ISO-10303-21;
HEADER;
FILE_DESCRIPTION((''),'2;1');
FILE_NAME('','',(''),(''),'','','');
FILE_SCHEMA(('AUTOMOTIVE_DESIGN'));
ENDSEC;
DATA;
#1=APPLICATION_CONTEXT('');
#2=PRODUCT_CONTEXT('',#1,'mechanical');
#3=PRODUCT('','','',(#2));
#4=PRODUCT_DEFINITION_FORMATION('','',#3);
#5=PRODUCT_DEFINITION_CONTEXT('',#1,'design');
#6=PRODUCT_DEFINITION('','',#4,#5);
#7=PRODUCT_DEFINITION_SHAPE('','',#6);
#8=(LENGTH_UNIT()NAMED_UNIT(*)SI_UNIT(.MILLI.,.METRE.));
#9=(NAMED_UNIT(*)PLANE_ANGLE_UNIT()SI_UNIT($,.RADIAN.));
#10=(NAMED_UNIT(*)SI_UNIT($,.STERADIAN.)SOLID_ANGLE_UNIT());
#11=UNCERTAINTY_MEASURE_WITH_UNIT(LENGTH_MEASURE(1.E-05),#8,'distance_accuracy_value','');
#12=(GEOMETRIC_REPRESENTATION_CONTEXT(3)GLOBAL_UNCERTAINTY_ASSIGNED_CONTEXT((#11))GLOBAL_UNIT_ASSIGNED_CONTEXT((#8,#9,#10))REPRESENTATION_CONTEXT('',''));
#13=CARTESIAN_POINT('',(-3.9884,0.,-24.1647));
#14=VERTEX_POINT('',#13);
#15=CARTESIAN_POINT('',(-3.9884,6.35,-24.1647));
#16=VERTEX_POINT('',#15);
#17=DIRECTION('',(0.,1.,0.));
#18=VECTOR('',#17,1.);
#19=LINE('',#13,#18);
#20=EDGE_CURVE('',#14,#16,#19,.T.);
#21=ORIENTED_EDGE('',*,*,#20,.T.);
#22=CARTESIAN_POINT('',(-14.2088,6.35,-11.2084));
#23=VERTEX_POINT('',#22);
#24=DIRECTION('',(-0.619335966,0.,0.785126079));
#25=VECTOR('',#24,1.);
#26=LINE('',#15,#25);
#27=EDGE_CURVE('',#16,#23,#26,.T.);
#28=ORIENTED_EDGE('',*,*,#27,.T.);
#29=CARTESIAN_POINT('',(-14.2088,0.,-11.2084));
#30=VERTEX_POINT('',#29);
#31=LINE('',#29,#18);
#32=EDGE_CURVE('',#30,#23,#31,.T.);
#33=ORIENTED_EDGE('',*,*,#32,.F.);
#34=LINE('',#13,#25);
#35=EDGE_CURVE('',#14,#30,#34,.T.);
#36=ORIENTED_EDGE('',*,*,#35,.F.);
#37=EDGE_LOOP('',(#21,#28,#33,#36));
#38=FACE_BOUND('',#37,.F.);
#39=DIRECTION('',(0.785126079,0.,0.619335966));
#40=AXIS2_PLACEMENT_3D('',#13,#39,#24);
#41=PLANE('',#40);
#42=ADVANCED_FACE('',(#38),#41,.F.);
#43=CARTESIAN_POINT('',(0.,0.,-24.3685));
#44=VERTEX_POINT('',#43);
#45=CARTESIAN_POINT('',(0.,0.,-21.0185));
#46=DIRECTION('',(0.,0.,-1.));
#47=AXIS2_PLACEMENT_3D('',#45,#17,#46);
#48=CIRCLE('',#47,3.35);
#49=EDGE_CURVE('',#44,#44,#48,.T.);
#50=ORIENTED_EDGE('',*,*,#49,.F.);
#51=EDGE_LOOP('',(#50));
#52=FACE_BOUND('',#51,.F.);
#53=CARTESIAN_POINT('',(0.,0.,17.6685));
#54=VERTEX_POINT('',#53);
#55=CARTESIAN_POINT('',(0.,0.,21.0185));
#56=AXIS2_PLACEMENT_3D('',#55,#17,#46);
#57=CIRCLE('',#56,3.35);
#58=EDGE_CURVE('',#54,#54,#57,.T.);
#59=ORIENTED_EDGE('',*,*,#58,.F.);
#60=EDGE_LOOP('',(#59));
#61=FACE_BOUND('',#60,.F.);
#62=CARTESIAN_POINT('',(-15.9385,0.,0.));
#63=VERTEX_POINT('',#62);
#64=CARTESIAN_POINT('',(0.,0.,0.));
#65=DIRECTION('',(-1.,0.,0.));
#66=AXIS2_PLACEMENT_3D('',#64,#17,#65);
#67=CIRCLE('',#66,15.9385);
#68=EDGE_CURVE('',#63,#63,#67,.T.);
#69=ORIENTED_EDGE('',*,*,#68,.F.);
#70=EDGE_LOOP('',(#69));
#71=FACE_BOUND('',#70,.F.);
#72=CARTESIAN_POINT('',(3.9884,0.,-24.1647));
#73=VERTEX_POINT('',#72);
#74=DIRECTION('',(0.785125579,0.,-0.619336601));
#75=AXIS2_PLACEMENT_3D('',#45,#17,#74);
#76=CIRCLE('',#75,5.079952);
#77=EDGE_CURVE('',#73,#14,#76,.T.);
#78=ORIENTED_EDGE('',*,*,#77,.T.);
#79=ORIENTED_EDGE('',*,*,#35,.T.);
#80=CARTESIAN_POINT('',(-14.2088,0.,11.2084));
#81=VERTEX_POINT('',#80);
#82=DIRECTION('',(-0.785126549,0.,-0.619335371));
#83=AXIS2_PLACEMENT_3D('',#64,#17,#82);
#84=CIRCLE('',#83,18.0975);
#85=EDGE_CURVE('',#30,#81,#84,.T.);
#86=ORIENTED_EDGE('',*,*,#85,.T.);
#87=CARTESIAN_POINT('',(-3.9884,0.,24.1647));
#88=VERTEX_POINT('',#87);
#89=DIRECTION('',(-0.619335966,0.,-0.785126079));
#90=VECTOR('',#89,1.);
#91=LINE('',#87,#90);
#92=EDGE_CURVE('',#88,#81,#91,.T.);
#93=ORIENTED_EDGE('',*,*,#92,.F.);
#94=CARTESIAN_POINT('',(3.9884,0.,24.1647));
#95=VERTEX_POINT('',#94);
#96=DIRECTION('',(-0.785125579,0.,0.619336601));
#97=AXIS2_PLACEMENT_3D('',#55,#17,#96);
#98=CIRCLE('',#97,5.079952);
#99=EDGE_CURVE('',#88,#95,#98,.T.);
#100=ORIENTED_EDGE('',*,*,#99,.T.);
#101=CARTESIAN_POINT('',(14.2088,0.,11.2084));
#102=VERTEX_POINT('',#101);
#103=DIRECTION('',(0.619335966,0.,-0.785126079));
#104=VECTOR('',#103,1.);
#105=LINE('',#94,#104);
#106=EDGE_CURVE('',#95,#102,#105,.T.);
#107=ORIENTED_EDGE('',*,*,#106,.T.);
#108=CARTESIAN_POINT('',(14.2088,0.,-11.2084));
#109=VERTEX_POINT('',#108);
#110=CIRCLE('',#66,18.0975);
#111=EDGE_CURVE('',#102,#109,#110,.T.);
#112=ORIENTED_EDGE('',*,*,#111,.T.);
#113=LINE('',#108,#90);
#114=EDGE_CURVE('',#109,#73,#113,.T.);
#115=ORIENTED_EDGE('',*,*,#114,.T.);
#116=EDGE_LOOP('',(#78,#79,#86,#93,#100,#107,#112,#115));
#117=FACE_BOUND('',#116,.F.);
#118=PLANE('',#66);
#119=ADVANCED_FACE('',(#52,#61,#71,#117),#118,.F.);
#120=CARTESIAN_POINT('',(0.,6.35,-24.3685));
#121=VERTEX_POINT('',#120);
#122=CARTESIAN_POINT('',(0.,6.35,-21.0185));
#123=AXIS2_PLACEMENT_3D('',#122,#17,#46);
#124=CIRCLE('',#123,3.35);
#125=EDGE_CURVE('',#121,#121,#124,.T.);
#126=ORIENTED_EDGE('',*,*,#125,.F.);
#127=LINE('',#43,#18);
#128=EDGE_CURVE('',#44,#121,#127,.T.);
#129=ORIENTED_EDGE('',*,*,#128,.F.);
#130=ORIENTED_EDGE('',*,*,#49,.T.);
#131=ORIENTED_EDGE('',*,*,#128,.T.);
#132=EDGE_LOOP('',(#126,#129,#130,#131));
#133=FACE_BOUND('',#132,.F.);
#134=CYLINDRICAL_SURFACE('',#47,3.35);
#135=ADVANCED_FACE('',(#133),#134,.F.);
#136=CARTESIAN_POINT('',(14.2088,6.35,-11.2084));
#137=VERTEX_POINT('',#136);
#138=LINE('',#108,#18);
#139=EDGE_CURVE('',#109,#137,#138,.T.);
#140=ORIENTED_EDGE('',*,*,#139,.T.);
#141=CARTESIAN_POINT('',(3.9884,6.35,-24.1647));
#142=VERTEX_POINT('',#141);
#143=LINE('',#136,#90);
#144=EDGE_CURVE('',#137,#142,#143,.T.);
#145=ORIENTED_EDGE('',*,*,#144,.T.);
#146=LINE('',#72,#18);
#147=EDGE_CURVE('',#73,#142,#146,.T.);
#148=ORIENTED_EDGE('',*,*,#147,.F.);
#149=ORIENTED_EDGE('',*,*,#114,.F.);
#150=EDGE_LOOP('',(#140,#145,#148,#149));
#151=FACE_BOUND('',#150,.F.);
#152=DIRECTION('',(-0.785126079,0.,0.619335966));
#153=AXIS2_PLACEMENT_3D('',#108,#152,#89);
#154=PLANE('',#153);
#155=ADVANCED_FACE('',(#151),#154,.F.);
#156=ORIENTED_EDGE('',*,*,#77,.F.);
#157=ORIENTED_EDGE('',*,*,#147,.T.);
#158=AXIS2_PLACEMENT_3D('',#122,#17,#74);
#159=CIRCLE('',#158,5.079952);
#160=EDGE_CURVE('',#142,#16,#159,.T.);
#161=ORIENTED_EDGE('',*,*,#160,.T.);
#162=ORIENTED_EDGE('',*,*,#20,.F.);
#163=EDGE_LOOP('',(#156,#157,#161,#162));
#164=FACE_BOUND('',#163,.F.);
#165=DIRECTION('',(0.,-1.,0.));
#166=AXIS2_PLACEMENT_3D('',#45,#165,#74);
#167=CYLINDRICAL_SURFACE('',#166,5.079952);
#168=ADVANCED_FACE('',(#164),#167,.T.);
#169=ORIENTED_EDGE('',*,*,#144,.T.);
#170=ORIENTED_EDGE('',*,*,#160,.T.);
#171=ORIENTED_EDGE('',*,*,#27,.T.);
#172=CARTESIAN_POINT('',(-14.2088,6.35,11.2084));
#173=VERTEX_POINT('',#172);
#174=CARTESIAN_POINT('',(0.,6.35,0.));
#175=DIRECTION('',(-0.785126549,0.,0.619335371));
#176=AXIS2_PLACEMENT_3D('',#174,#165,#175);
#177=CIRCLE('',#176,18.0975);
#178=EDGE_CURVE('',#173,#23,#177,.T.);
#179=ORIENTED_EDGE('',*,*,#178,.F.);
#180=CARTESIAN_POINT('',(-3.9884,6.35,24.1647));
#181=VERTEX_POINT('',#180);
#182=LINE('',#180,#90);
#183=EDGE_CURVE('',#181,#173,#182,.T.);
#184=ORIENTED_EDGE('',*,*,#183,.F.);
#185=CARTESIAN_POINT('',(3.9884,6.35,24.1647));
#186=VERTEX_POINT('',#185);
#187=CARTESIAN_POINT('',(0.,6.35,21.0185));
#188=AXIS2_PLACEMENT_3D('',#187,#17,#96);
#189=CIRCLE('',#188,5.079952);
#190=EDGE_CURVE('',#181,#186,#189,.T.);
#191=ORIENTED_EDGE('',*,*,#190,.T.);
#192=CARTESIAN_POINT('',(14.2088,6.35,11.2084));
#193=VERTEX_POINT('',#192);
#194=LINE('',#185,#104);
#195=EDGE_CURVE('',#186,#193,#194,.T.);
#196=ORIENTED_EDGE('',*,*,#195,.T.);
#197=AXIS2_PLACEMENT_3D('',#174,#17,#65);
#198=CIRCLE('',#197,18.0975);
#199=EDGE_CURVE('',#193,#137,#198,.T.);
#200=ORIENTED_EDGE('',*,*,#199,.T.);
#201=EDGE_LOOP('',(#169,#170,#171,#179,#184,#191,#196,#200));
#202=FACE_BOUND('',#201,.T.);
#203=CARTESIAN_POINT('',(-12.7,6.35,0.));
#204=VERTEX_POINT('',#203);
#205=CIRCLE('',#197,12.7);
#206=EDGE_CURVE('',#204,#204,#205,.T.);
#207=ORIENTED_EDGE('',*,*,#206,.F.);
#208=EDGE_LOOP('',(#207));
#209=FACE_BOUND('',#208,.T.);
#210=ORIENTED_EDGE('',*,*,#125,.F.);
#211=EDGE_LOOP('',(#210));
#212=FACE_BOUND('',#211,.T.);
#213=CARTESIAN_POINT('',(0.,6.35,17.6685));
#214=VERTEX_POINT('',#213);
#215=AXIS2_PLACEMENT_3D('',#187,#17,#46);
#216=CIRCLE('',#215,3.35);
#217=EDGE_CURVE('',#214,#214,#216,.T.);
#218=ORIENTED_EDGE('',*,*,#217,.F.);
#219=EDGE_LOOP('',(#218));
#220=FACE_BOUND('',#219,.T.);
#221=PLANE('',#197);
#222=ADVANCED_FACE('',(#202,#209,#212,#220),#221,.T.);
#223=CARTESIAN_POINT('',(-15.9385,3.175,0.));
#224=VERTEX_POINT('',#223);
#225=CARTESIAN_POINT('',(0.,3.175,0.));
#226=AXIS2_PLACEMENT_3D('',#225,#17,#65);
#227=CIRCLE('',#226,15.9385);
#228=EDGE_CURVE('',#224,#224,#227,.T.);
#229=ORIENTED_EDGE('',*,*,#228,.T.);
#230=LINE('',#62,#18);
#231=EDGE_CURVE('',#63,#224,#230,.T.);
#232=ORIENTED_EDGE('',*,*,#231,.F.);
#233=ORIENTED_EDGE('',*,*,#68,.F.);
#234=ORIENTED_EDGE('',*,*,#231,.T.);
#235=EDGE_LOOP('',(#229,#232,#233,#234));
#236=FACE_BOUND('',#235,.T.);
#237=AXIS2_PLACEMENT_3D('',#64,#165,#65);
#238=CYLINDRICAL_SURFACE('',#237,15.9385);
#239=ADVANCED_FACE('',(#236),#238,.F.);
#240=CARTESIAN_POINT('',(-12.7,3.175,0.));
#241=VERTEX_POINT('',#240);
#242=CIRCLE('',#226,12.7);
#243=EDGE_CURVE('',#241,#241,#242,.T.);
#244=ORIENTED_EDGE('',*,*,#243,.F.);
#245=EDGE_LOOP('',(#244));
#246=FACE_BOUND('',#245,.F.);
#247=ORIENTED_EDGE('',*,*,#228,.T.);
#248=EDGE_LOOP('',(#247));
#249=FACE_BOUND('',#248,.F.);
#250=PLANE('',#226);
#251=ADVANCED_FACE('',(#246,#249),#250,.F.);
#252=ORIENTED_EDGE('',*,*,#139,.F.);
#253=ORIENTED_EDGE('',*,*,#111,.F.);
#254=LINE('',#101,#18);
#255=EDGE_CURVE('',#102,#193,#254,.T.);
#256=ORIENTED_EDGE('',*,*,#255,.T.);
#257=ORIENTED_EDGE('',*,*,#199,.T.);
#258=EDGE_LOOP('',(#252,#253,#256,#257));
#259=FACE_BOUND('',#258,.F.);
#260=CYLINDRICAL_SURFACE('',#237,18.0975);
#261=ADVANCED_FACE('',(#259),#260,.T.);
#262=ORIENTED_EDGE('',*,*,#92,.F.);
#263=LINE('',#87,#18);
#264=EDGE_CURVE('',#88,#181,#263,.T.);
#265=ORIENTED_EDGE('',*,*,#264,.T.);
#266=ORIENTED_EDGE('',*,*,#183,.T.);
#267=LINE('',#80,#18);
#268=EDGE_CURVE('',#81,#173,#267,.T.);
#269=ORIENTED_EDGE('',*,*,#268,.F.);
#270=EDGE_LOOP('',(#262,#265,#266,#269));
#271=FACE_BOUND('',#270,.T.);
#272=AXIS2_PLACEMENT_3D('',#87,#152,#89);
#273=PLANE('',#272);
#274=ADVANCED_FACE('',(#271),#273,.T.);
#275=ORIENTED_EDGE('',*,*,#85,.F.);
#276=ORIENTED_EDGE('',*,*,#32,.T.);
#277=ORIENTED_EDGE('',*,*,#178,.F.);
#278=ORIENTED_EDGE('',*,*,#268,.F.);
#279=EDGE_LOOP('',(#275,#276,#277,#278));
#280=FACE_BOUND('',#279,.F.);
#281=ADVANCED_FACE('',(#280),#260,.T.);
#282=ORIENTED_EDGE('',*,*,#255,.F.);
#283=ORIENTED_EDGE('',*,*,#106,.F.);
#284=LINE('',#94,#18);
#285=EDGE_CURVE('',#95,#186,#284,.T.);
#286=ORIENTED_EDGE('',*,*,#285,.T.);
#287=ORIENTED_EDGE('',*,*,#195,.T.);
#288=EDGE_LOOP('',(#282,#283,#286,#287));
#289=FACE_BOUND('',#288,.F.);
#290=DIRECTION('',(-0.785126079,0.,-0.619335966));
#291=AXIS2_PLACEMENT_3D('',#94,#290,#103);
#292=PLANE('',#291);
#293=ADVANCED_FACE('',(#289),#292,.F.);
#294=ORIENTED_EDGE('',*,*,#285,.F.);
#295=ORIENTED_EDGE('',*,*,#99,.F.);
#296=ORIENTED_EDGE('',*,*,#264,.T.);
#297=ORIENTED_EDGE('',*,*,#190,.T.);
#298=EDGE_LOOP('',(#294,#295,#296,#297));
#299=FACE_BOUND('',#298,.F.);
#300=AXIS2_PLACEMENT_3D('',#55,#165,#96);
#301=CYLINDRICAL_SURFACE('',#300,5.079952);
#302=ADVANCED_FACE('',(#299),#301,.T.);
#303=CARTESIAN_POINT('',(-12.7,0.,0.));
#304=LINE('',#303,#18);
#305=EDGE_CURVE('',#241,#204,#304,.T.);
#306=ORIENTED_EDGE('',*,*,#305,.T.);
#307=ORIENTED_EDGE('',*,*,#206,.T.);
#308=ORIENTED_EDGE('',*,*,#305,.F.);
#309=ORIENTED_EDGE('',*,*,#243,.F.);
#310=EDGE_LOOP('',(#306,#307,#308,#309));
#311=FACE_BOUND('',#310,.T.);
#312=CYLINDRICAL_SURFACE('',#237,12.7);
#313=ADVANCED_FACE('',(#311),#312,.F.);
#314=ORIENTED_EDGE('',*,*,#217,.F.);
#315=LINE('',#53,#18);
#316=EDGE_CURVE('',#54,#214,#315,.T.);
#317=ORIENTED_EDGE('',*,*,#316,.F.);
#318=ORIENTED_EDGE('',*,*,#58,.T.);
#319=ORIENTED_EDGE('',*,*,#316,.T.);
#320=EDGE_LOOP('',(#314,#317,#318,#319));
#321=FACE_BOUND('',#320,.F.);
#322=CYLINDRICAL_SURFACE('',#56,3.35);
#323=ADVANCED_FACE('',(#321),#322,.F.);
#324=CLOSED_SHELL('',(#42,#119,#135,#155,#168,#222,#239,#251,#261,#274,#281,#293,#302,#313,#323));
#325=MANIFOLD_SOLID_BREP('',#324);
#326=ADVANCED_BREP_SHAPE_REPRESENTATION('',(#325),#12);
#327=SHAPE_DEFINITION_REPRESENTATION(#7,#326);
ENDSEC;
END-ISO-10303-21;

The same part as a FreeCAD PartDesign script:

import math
import FreeCAD as App
import Part
import Sketcher
from FreeCAD import Vector
Q = App.Units.Quantity

doc = App.newDocument("Part")
params = doc.addObject("Spreadsheet::Sheet", "Params")
for row, (alias, value) in enumerate([
    ("sketch1_diameter", "1 in"),
    ("sketch1_radius", "0.2 in"),
    ("pad1_length", "0.25 in"),
    ("sketch2_diameter", "1 in"),
    ("sketch2_diameter2", "1.255 in"),
    ("pocket1_length", "0.125 in"),
    ("hole_diameter", "6.7 mm"),
], start=1):
    params.set(f"A{row}", alias)
    params.set(f"B{row}", "=" + value)
    params.setAlias(f"B{row}", alias)

body = doc.addObject("PartDesign::Body", "Body")

# Sketch on XZ plane
sketch1 = body.newObject("Sketcher::SketchObject", "Sketch")
sketch1.AttachmentSupport = (doc.getObject("XZ_Plane"), [""])
sketch1.MapMode = "FlatFace"
sketch1.addGeometry([
    Part.ArcOfCircle(Part.Circle(Vector(0, 0, 0), Vector(0, 0, 1), 18), math.radians(142), math.radians(218)),  # 0
    Part.LineSegment(Vector(-14, 11, 0), Vector(-4, 24, 0)),  # 1
    Part.ArcOfCircle(Part.Circle(Vector(0, 21, 0), Vector(0, 0, 1), 5), math.radians(38), math.radians(142)),  # 2
    Part.LineSegment(Vector(4, 24, 0), Vector(14, 11, 0)),  # 3
    Part.ArcOfCircle(Part.Circle(Vector(0, 0, 0), Vector(0, 0, 1), 18), math.radians(-38), math.radians(38)),  # 4
    Part.LineSegment(Vector(14, -11, 0), Vector(4, -24, 0)),  # 5
    Part.ArcOfCircle(Part.Circle(Vector(0, -21, 0), Vector(0, 0, 1), 5), math.radians(-142), math.radians(-38)),  # 6
    Part.LineSegment(Vector(-4, -24, 0), Vector(-14, -11, 0)),  # 7
    Part.Circle(Vector(0, 0, 0), Vector(0, 0, 1), 13),  # 8
], False)
sketch1.addConstraint([
    Sketcher.Constraint("Tangent", 0, 1, 1, 1),
    Sketcher.Constraint("Tangent", 1, 2, 2, 2),
    Sketcher.Constraint("Tangent", 2, 1, 3, 1),
    Sketcher.Constraint("Tangent", 3, 2, 4, 2),
    Sketcher.Constraint("Tangent", 4, 1, 5, 1),
    Sketcher.Constraint("Tangent", 5, 2, 6, 2),
    Sketcher.Constraint("Tangent", 6, 1, 7, 1),
    Sketcher.Constraint("Tangent", 7, 2, 0, 2),
    Sketcher.Constraint("Coincident", 0, 3, -1, 1),
    Sketcher.Constraint("Coincident", 4, 3, -1, 1),
    Sketcher.Constraint("Coincident", 8, 3, -1, 1),
    Sketcher.Constraint("Equal", 0, 4),
    Sketcher.Constraint("Equal", 2, 6),
    Sketcher.Constraint("Symmetric", 2, 3, 6, 3, -1, 1),
    Sketcher.Constraint("PointOnObject", 2, 3, -2),
    Sketcher.Constraint("Diameter", 8, Q("1 in")),
    Sketcher.Constraint("Radius", 2, Q("0.2 in")),
    Sketcher.Constraint("Radius", 0, Q("0.7125 in")),
    Sketcher.Constraint("DistanceY", 6, 3, 2, 3, Q("1.655 in")),
])
sketch1.setExpression("Constraints[15]", "Params.sketch1_diameter")
sketch1.setExpression("Constraints[16]", "Params.sketch1_radius")
pad1 = body.newObject("PartDesign::Pad", "Pad")
pad1.Profile = sketch1
pad1.setExpression("Length", "Params.pad1_length")
pad1.Reversed = True

# Sketch on XZ plane
sketch2 = body.newObject("Sketcher::SketchObject", "Sketch001")
sketch2.AttachmentSupport = (doc.getObject("XZ_Plane"), [""])
sketch2.MapMode = "FlatFace"
sketch2.addGeometry([
    Part.Circle(Vector(0, 0, 0), Vector(0, 0, 1), 16),
    Part.Circle(Vector(0, 0, 0), Vector(0, 0, 1), 13),
], False)
sketch2.addConstraint([
    Sketcher.Constraint("Coincident", 0, 3, -1, 1),
    Sketcher.Constraint("Coincident", 1, 3, -1, 1),
    Sketcher.Constraint("Diameter", 1, Q("1 in")),
    Sketcher.Constraint("Diameter", 0, Q("1.255 in")),
])
sketch2.setExpression("Constraints[2]", "Params.sketch2_diameter")
sketch2.setExpression("Constraints[3]", "Params.sketch2_diameter2")
pocket1 = body.newObject("PartDesign::Pocket", "Pocket")
pocket1.Profile = sketch2
pocket1.setExpression("Length", "Params.pocket1_length")

# Sketch on XZ plane
sketch3 = body.newObject("Sketcher::SketchObject", "Sketch002")
sketch3.AttachmentSupport = (doc.getObject("XZ_Plane"), [""])
sketch3.MapMode = "FlatFace"
sketch3.addGeometry([
    Part.Circle(Vector(0, 21, 0), Vector(0, 0, 1), 3.4),
    Part.Circle(Vector(0, -21, 0), Vector(0, 0, 1), 3.4),
], False)
sketch3.addConstraint([
    Sketcher.Constraint("Equal", 0, 1),
    Sketcher.Constraint("Symmetric", 0, 3, 1, 3, -1, 1),
    Sketcher.Constraint("PointOnObject", 0, 3, -2),
    Sketcher.Constraint("Diameter", 0, 6.7),
    Sketcher.Constraint("DistanceY", 1, 3, 0, 3, Q("1.655 in")),
])
doc.recompute()
hole = body.newObject("PartDesign::Hole", "Hole")
hole.Profile = sketch3
hole.ThreadType = "None"
hole.setExpression("Diameter", "Params.hole_diameter")
hole.DepthType = "ThroughAll"

doc.recompute()
